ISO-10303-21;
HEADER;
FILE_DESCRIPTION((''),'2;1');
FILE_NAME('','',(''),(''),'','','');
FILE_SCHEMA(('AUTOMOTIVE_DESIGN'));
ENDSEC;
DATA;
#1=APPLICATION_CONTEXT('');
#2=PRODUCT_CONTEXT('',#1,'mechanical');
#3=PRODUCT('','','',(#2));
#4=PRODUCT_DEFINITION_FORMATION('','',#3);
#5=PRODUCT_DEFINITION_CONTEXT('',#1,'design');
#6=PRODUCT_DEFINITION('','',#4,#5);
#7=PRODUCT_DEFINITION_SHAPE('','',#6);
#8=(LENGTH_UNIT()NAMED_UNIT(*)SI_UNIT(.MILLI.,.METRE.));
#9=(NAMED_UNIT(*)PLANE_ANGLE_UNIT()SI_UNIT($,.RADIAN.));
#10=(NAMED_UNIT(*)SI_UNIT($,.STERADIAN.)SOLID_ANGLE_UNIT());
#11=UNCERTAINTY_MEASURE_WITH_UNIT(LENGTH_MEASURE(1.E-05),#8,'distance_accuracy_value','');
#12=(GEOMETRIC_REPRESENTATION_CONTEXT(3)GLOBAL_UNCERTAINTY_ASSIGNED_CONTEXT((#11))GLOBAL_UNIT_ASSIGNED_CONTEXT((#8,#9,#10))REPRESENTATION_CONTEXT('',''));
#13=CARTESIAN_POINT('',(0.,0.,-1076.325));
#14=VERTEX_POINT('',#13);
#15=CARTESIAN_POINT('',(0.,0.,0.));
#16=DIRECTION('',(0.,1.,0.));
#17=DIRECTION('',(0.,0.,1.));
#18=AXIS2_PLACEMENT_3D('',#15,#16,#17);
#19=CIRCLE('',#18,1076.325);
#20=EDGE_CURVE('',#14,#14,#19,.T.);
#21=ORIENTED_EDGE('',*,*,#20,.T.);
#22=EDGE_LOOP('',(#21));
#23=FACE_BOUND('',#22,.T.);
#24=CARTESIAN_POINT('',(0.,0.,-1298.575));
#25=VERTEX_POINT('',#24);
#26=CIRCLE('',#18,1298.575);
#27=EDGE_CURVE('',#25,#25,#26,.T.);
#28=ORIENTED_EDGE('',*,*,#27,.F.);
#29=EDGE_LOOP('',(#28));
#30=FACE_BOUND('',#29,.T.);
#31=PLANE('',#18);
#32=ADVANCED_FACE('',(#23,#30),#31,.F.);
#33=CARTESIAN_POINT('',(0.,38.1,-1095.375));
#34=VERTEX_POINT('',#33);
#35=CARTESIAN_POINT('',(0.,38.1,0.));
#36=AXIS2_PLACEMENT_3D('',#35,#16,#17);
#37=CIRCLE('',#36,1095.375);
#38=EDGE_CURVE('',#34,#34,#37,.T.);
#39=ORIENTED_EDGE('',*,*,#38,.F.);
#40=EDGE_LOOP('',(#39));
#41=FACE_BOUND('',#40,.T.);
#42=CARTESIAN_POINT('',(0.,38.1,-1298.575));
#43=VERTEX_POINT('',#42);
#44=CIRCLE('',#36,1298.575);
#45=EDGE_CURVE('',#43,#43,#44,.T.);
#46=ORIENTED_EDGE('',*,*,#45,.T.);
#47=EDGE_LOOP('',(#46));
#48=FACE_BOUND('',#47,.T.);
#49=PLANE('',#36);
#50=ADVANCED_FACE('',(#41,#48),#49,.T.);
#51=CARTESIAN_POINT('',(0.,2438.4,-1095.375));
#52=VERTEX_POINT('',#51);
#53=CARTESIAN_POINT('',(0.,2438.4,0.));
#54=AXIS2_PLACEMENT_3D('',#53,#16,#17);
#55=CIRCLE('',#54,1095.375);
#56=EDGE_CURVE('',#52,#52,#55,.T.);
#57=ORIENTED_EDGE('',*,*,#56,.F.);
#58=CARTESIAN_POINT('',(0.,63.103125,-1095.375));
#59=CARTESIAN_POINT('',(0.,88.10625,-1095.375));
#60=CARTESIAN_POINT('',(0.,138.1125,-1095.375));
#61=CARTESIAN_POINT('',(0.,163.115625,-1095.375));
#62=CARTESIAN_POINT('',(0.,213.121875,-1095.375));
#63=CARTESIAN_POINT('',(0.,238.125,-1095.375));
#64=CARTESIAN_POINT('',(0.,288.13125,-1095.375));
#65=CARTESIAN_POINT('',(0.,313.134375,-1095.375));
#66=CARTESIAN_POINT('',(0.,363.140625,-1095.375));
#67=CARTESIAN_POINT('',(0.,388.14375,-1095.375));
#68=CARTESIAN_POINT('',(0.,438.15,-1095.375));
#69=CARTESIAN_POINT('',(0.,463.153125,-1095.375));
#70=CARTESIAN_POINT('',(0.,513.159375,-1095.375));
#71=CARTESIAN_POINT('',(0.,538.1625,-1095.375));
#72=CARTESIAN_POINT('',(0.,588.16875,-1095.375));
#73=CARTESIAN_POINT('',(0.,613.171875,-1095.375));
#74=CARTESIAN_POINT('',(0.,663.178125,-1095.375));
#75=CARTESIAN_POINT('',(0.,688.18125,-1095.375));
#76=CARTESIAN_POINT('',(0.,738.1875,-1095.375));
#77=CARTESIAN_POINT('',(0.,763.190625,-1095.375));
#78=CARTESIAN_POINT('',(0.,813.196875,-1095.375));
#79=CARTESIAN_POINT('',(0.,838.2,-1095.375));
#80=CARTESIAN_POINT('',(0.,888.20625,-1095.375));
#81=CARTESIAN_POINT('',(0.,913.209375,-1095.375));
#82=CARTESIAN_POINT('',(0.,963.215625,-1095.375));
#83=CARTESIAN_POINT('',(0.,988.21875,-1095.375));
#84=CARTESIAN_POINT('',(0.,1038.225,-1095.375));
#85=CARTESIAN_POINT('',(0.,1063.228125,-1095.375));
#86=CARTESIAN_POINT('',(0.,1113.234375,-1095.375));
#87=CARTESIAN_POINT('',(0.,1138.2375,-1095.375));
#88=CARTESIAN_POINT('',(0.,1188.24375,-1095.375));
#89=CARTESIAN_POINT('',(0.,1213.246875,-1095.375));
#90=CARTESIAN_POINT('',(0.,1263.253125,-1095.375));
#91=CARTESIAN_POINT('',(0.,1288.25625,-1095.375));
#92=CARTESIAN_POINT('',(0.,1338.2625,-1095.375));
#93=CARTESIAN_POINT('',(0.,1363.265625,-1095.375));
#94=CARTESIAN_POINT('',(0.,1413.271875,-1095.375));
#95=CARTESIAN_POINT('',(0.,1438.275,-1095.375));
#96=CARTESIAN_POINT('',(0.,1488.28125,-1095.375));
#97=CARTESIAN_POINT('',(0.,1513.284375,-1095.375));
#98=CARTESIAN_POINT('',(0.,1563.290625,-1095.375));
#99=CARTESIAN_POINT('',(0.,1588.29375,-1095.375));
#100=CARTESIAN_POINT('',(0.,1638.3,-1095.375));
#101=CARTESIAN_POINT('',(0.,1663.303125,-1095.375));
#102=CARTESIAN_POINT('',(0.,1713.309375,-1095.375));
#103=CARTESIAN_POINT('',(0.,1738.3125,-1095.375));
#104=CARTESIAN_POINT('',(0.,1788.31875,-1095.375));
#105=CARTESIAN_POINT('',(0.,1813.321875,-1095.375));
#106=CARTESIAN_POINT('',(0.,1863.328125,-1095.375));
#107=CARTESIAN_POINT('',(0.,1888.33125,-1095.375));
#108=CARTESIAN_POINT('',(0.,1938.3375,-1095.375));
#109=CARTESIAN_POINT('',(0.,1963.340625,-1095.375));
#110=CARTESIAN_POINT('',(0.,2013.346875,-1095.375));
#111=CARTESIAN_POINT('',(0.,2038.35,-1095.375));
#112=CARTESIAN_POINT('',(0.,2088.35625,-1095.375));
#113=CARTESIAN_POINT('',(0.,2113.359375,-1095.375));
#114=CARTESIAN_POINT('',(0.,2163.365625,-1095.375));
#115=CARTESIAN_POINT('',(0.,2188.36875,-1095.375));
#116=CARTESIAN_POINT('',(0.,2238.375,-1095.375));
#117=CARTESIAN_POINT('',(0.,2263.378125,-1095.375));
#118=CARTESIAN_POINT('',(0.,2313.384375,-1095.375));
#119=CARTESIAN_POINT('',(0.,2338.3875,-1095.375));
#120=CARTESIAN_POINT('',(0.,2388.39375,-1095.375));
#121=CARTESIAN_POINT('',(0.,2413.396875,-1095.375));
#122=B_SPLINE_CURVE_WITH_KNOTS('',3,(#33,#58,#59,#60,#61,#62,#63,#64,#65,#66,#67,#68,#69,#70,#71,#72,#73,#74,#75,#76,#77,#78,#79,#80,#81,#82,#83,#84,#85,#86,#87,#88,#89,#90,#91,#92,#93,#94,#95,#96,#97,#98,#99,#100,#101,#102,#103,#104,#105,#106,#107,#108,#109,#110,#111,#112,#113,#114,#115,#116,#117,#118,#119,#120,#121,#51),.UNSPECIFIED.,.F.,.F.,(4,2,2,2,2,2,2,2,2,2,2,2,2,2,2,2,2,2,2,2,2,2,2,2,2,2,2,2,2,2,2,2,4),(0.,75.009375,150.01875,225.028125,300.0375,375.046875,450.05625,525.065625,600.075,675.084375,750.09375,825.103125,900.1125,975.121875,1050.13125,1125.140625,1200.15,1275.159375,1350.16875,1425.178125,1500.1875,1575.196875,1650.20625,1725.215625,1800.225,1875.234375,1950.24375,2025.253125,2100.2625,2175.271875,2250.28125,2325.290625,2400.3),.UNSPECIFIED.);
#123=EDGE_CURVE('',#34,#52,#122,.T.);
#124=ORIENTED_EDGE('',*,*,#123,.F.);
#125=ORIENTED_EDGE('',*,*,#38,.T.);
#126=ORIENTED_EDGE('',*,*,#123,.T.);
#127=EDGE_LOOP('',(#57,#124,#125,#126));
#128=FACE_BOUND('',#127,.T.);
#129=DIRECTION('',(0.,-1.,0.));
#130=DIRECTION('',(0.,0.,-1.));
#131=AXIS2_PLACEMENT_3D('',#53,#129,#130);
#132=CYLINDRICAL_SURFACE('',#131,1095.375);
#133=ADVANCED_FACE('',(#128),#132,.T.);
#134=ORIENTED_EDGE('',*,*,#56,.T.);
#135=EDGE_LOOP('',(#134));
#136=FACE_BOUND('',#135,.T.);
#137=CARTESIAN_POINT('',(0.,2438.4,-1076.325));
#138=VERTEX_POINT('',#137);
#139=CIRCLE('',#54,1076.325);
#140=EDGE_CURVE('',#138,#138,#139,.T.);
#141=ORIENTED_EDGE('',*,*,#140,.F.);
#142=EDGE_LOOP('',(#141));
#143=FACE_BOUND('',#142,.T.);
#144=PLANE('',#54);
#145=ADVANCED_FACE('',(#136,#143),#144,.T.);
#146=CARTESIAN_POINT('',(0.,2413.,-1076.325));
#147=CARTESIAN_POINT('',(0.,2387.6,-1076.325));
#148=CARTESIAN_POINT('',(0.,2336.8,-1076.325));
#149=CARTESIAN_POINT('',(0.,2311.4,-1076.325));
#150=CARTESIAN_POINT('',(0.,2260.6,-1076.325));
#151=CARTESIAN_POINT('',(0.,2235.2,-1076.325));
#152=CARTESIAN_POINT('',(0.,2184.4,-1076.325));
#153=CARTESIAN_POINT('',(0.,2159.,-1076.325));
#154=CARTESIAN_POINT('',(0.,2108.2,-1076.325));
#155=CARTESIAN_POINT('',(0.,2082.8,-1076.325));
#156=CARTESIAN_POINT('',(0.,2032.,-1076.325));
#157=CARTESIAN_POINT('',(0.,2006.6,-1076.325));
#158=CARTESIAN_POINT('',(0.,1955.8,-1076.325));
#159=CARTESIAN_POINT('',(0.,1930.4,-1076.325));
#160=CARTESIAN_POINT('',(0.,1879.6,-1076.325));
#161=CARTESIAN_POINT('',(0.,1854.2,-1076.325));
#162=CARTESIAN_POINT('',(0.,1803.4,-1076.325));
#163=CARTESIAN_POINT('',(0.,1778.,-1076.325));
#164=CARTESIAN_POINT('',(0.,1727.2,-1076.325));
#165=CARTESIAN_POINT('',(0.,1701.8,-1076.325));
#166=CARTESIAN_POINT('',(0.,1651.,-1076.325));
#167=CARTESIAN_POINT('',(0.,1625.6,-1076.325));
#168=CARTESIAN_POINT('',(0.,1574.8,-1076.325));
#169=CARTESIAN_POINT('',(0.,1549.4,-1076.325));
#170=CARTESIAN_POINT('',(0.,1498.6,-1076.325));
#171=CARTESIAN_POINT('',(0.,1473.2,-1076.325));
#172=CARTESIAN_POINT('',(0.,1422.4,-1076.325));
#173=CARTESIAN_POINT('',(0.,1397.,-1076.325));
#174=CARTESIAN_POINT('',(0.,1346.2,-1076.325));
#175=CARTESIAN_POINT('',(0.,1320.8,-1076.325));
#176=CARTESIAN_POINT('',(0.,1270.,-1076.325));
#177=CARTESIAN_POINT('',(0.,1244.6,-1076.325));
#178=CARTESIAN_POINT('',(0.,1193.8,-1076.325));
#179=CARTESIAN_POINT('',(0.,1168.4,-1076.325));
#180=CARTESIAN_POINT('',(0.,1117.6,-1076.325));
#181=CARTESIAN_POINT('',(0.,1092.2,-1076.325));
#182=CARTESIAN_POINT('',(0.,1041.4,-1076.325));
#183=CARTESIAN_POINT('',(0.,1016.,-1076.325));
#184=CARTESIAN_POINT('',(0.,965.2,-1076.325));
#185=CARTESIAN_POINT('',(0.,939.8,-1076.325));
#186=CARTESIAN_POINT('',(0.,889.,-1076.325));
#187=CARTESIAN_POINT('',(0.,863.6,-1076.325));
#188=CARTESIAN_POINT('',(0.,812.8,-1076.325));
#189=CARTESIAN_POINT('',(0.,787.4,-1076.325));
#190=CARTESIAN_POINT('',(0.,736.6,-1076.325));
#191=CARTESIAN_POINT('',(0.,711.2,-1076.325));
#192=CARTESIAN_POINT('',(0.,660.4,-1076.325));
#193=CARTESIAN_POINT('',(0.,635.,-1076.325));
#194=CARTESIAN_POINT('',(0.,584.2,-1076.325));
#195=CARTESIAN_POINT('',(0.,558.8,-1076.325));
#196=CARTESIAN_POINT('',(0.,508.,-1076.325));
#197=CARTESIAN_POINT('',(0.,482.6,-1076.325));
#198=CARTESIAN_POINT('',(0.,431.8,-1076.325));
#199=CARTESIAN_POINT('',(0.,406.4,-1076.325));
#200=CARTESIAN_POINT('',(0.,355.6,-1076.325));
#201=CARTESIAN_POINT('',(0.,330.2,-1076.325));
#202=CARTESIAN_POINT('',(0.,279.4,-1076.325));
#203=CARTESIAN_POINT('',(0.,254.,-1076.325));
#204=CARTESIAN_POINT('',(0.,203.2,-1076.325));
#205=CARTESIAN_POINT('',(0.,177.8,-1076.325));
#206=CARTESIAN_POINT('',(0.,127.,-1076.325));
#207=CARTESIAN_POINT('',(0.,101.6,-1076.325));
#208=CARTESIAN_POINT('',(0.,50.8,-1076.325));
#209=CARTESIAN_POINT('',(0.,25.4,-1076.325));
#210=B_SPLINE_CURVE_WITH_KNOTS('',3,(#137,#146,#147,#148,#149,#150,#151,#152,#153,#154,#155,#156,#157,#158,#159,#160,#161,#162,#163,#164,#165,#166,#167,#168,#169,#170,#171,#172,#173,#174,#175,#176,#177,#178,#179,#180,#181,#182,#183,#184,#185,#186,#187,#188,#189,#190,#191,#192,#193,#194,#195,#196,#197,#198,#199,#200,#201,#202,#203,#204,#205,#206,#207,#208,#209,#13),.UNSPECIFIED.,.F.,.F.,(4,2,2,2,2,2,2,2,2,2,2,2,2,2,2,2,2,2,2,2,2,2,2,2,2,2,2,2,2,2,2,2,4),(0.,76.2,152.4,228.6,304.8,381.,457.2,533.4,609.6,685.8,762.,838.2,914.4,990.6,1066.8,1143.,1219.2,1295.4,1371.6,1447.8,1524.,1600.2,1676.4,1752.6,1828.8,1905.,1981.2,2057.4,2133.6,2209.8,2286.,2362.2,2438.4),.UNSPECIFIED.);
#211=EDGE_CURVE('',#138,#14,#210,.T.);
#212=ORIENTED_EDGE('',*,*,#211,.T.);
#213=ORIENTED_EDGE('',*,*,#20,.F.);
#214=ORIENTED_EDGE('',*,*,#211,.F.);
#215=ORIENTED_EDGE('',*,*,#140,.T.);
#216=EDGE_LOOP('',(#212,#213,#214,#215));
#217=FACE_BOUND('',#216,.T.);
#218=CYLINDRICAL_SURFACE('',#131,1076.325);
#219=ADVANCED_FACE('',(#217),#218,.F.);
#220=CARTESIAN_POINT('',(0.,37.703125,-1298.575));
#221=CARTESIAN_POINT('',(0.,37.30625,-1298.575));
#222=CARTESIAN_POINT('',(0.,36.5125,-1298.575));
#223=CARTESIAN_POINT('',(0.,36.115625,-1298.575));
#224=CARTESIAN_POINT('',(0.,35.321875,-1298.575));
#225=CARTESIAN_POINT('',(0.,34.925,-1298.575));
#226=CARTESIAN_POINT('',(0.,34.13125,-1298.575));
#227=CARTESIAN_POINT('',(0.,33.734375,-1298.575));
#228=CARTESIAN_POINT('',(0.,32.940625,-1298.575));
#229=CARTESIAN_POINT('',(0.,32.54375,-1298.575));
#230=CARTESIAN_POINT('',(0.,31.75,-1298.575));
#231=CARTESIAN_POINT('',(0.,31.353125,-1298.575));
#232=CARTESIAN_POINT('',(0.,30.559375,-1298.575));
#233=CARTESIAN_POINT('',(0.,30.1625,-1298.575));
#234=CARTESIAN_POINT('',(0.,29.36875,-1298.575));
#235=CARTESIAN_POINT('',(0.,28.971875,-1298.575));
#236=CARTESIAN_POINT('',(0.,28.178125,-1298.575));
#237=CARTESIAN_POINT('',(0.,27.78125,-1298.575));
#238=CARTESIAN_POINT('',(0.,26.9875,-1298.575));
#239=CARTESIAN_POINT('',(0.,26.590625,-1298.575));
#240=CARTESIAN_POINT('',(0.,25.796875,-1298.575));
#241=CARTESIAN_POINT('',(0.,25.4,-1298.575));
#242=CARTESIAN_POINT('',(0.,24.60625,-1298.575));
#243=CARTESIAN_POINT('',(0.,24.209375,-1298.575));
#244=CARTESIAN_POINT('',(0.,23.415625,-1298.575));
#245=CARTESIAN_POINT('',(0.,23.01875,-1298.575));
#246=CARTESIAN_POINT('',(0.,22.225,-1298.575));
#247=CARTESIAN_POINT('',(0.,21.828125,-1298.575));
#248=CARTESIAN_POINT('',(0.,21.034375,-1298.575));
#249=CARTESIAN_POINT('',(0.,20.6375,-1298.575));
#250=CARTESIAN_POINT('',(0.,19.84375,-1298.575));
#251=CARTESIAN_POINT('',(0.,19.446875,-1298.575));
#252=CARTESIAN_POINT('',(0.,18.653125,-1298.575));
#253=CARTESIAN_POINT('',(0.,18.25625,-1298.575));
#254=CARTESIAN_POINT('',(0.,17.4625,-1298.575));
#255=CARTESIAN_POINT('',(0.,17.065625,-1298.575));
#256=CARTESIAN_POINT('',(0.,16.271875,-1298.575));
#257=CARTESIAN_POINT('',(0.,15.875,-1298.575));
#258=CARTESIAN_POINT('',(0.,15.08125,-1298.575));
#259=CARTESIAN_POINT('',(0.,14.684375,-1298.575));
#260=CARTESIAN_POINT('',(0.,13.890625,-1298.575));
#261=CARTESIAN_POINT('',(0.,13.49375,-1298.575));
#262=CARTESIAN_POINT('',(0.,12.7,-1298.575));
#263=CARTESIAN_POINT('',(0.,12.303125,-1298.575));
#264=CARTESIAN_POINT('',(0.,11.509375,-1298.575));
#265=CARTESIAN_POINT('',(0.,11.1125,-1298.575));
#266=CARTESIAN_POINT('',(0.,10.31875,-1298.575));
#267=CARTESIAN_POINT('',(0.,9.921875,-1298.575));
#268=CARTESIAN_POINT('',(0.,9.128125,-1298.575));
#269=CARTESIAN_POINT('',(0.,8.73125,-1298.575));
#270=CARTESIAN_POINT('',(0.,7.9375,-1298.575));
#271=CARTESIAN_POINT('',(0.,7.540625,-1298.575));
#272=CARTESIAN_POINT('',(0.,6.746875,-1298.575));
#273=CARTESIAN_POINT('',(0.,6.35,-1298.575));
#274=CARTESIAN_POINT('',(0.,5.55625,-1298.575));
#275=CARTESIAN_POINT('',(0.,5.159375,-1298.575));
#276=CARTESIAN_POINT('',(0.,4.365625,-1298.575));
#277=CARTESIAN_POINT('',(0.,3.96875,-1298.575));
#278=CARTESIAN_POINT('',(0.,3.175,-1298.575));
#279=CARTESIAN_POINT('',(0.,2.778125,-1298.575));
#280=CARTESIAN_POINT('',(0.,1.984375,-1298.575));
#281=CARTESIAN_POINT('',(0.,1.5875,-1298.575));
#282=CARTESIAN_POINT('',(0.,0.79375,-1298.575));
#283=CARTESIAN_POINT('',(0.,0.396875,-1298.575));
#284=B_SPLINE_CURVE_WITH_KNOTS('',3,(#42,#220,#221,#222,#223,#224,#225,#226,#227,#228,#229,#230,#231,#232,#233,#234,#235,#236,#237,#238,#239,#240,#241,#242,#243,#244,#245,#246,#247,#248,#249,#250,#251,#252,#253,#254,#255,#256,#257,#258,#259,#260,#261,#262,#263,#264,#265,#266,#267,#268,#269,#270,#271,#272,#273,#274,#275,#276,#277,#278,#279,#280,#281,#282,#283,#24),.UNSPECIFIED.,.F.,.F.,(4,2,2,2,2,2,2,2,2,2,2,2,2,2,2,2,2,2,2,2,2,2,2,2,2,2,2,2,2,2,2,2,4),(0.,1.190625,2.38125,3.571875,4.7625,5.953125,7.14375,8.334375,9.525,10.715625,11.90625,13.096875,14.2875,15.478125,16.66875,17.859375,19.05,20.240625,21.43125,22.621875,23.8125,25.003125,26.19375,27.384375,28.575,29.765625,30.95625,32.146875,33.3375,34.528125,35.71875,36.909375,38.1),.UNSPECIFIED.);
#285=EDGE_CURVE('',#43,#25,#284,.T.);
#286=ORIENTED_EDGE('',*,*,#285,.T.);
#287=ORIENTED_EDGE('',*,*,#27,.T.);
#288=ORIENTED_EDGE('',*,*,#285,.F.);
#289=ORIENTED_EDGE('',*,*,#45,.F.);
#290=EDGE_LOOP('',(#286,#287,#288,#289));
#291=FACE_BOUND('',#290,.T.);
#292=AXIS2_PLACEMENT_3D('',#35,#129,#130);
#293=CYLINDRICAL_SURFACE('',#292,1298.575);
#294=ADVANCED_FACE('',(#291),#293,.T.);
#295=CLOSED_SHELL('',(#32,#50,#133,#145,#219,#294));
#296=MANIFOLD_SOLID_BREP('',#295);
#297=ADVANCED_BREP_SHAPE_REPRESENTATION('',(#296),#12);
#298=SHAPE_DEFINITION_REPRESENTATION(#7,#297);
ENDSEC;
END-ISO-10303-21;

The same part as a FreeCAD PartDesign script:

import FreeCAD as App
import Part
import Sketcher
Q = App.Units.Quantity

doc = App.newDocument("Part")
body = doc.addObject("PartDesign::Body", "Body")

sketch1 = body.newObject("Sketcher::SketchObject", "Sketch")
sketch1.AttachmentSupport = (doc.getObject("XZ_Plane"), [""])
sketch1.MapMode = "FlatFace"
sketch1.addGeometry(Part.Circle(App.Vector(0, 0, 0), App.Vector(0, 0, 1), 1095), False)
sketch1.addGeometry(Part.Circle(App.Vector(0, 0, 0), App.Vector(0, 0, 1), 1076), False)
sketch1.addConstraint(Sketcher.Constraint("Coincident", 0, 3, -1, 1))
sketch1.addConstraint(Sketcher.Constraint("Coincident", 1, 3, -1, 1))
sketch1.addConstraint(Sketcher.Constraint("Diameter", 0, Q("86.25 in")))
sketch1.addConstraint(Sketcher.Constraint("Diameter", 1, Q("84.75 in")))
pad1 = body.newObject("PartDesign::Pad", "Pad")
pad1.Profile = sketch1
pad1.Length = Q("96 in")
pad1.Reversed = True

sketch2 = body.newObject("Sketcher::SketchObject", "Sketch001")
sketch2.AttachmentSupport = (doc.getObject("XZ_Plane"), [""])
sketch2.MapMode = "FlatFace"
sketch2.addGeometry(Part.Circle(App.Vector(0, 0, 0), App.Vector(0, 0, 1), 1299), False)
sketch2.addGeometry(Part.Circle(App.Vector(0, 0, 0), App.Vector(0, 0, 1), 1076), False)
sketch2.addConstraint(Sketcher.Constraint("Coincident", 0, 3, -1, 1))
sketch2.addConstraint(Sketcher.Constraint("Coincident", 1, 3, -1, 1))
sketch2.addConstraint(Sketcher.Constraint("Diameter", 0, Q("102.25 in")))
sketch2.addConstraint(Sketcher.Constraint("Diameter", 1, Q("84.75 in")))
pad2 = body.newObject("PartDesign::Pad", "Pad001")
pad2.Profile = sketch2
pad2.Length = Q("1.5 in")
pad2.Reversed = True

doc.recompute()
